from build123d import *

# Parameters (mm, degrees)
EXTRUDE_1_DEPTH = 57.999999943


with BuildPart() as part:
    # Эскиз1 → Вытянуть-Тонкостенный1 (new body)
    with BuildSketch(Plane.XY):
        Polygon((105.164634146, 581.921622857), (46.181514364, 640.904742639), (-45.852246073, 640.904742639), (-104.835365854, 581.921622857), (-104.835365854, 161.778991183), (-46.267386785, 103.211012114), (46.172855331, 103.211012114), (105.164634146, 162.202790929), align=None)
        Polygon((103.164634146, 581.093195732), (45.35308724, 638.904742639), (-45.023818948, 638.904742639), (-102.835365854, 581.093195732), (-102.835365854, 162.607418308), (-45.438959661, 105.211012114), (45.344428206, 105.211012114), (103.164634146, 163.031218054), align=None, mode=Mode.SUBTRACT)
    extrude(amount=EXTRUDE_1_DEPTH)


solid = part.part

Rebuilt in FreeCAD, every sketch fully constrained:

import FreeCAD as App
import Part
import Sketcher
Q = App.Units.Quantity

doc = App.newDocument("Part")
body = doc.addObject("PartDesign::Body", "Body")

# Sketch on XY plane
sketch1 = doc.addObject("Sketcher::SketchObject", "Sketch")
body.addObject(sketch1)
sketch1.AttachmentSupport = (doc.XY_Plane, [""])
sketch1.MapMode = "FlatFace"
sketch1.addGeometry([
    Part.LineSegment(App.Vector(105, 582, 0), App.Vector(46, 641, 0)),  # 0
    Part.LineSegment(App.Vector(46, 641, 0), App.Vector(-46, 641, 0)),  # 1
    Part.LineSegment(App.Vector(-46, 641, 0), App.Vector(-105, 582, 0)),  # 2
    Part.LineSegment(App.Vector(-105, 582, 0), App.Vector(-105, 162, 0)),  # 3
    Part.LineSegment(App.Vector(-105, 162, 0), App.Vector(-46, 103, 0)),  # 4
    Part.LineSegment(App.Vector(-46, 103, 0), App.Vector(46, 103, 0)),  # 5
    Part.LineSegment(App.Vector(46, 103, 0), App.Vector(105, 162, 0)),  # 6
    Part.LineSegment(App.Vector(105, 162, 0), App.Vector(105, 582, 0)),  # 7
    Part.LineSegment(App.Vector(45, 639, 0), App.Vector(103, 581, 0)),  # 8
    Part.LineSegment(App.Vector(103, 581, 0), App.Vector(103, 163, 0)),  # 9
    Part.LineSegment(App.Vector(103, 163, 0), App.Vector(45, 105, 0)),  # 10
    Part.LineSegment(App.Vector(45, 105, 0), App.Vector(-45, 105, 0)),  # 11
    Part.LineSegment(App.Vector(-45, 105, 0), App.Vector(-103, 163, 0)),  # 12
    Part.LineSegment(App.Vector(-103, 163, 0), App.Vector(-103, 581, 0)),  # 13
    Part.LineSegment(App.Vector(-103, 581, 0), App.Vector(-45, 639, 0)),  # 14
    Part.LineSegment(App.Vector(-45, 639, 0), App.Vector(45, 639, 0)),  # 15
], False)
sketch1.addConstraint([
    Sketcher.Constraint("Coincident", 0, 2, 1, 1),
    Sketcher.Constraint("Coincident", 1, 2, 2, 1),
    Sketcher.Constraint("Coincident", 2, 2, 3, 1),
    Sketcher.Constraint("Coincident", 3, 2, 4, 1),
    Sketcher.Constraint("Coincident", 4, 2, 5, 1),
    Sketcher.Constraint("Coincident", 5, 2, 6, 1),
    Sketcher.Constraint("Coincident", 6, 2, 7, 1),
    Sketcher.Constraint("Coincident", 7, 2, 0, 1),
    Sketcher.Constraint("Coincident", 8, 2, 9, 1),
    Sketcher.Constraint("Coincident", 9, 2, 10, 1),
    Sketcher.Constraint("Coincident", 10, 2, 11, 1),
    Sketcher.Constraint("Coincident", 11, 2, 12, 1),
    Sketcher.Constraint("Coincident", 12, 2, 13, 1),
    Sketcher.Constraint("Coincident", 13, 2, 14, 1),
    Sketcher.Constraint("Coincident", 14, 2, 15, 1),
    Sketcher.Constraint("Coincident", 15, 2, 8, 1),
    Sketcher.Constraint("Horizontal", 1),
    Sketcher.Constraint("Vertical", 3),
    Sketcher.Constraint("Horizontal", 5),
    Sketcher.Constraint("Vertical", 7),
    Sketcher.Constraint("Vertical", 9),
    Sketcher.Constraint("Horizontal", 11),
    Sketcher.Constraint("Vertical", 13),
    Sketcher.Constraint("Horizontal", 15),
    Sketcher.Constraint("Perpendicular", 0, 2),
    Sketcher.Constraint("Perpendicular", 2, 4),
    Sketcher.Constraint("Perpendicular", 4, 6),
    Sketcher.Constraint("Perpendicular", 6, 8),
    Sketcher.Constraint("Perpendicular", 8, 10),
    Sketcher.Constraint("Perpendicular", 10, 12),
    Sketcher.Constraint("Perpendicular", 12, 14),
    Sketcher.Constraint("Horizontal", 2, 2, 7, 2),
    Sketcher.Constraint("Horizontal", 8, 2, 13, 2),
    Sketcher.Constraint("Equal", 0, 2),
    Sketcher.Constraint("DistanceX", 3, 2, 6, 2, Q("210 mm")),
    Sketcher.Constraint("DistanceX", 8, 2, 7, 2, Q("2 mm")),
    Sketcher.Constraint("DistanceY", 5, 2, 10, 2, Q("2 mm")),
    Sketcher.Constraint("DistanceX", 3, 2, 12, 2, Q("2 mm")),
    Sketcher.Constraint("DistanceY", 14, 2, 1, 2, Q("2 mm")),
    Sketcher.Constraint("DistanceX", 1, 2, 1, 1, Q("92.03376 mm")),
    Sketcher.Constraint("DistanceY", 3, 2, 3, 1, Q("420.142632 mm")),
    Sketcher.Constraint("DistanceY", 7, 1, 7, 2, Q("419.718832 mm")),
    Sketcher.Constraint("DistanceX", 4, 2, 0, 2, Q("92.448901 mm")),
    Sketcher.Constraint("Distance", 10, Q("81.770119 mm")),
    Sketcher.Constraint("DistanceX", 11, 2, 11, 1, Q("90.783388 mm")),
    Sketcher.Constraint("DistanceX", 15, 1, 15, 2, Q("90.376906 mm")),
    Sketcher.Constraint("DistanceY", -1, 1, 3, 2, Q("161.778991 mm")),
    Sketcher.Constraint("DistanceX", -1, 1, 10, 2, Q("45.344428 mm")),
])
pad1 = doc.addObject("PartDesign::Pad", "Pad")
body.addObject(pad1)
pad1.Profile = sketch1
pad1.Length = 58

doc.recompute()
